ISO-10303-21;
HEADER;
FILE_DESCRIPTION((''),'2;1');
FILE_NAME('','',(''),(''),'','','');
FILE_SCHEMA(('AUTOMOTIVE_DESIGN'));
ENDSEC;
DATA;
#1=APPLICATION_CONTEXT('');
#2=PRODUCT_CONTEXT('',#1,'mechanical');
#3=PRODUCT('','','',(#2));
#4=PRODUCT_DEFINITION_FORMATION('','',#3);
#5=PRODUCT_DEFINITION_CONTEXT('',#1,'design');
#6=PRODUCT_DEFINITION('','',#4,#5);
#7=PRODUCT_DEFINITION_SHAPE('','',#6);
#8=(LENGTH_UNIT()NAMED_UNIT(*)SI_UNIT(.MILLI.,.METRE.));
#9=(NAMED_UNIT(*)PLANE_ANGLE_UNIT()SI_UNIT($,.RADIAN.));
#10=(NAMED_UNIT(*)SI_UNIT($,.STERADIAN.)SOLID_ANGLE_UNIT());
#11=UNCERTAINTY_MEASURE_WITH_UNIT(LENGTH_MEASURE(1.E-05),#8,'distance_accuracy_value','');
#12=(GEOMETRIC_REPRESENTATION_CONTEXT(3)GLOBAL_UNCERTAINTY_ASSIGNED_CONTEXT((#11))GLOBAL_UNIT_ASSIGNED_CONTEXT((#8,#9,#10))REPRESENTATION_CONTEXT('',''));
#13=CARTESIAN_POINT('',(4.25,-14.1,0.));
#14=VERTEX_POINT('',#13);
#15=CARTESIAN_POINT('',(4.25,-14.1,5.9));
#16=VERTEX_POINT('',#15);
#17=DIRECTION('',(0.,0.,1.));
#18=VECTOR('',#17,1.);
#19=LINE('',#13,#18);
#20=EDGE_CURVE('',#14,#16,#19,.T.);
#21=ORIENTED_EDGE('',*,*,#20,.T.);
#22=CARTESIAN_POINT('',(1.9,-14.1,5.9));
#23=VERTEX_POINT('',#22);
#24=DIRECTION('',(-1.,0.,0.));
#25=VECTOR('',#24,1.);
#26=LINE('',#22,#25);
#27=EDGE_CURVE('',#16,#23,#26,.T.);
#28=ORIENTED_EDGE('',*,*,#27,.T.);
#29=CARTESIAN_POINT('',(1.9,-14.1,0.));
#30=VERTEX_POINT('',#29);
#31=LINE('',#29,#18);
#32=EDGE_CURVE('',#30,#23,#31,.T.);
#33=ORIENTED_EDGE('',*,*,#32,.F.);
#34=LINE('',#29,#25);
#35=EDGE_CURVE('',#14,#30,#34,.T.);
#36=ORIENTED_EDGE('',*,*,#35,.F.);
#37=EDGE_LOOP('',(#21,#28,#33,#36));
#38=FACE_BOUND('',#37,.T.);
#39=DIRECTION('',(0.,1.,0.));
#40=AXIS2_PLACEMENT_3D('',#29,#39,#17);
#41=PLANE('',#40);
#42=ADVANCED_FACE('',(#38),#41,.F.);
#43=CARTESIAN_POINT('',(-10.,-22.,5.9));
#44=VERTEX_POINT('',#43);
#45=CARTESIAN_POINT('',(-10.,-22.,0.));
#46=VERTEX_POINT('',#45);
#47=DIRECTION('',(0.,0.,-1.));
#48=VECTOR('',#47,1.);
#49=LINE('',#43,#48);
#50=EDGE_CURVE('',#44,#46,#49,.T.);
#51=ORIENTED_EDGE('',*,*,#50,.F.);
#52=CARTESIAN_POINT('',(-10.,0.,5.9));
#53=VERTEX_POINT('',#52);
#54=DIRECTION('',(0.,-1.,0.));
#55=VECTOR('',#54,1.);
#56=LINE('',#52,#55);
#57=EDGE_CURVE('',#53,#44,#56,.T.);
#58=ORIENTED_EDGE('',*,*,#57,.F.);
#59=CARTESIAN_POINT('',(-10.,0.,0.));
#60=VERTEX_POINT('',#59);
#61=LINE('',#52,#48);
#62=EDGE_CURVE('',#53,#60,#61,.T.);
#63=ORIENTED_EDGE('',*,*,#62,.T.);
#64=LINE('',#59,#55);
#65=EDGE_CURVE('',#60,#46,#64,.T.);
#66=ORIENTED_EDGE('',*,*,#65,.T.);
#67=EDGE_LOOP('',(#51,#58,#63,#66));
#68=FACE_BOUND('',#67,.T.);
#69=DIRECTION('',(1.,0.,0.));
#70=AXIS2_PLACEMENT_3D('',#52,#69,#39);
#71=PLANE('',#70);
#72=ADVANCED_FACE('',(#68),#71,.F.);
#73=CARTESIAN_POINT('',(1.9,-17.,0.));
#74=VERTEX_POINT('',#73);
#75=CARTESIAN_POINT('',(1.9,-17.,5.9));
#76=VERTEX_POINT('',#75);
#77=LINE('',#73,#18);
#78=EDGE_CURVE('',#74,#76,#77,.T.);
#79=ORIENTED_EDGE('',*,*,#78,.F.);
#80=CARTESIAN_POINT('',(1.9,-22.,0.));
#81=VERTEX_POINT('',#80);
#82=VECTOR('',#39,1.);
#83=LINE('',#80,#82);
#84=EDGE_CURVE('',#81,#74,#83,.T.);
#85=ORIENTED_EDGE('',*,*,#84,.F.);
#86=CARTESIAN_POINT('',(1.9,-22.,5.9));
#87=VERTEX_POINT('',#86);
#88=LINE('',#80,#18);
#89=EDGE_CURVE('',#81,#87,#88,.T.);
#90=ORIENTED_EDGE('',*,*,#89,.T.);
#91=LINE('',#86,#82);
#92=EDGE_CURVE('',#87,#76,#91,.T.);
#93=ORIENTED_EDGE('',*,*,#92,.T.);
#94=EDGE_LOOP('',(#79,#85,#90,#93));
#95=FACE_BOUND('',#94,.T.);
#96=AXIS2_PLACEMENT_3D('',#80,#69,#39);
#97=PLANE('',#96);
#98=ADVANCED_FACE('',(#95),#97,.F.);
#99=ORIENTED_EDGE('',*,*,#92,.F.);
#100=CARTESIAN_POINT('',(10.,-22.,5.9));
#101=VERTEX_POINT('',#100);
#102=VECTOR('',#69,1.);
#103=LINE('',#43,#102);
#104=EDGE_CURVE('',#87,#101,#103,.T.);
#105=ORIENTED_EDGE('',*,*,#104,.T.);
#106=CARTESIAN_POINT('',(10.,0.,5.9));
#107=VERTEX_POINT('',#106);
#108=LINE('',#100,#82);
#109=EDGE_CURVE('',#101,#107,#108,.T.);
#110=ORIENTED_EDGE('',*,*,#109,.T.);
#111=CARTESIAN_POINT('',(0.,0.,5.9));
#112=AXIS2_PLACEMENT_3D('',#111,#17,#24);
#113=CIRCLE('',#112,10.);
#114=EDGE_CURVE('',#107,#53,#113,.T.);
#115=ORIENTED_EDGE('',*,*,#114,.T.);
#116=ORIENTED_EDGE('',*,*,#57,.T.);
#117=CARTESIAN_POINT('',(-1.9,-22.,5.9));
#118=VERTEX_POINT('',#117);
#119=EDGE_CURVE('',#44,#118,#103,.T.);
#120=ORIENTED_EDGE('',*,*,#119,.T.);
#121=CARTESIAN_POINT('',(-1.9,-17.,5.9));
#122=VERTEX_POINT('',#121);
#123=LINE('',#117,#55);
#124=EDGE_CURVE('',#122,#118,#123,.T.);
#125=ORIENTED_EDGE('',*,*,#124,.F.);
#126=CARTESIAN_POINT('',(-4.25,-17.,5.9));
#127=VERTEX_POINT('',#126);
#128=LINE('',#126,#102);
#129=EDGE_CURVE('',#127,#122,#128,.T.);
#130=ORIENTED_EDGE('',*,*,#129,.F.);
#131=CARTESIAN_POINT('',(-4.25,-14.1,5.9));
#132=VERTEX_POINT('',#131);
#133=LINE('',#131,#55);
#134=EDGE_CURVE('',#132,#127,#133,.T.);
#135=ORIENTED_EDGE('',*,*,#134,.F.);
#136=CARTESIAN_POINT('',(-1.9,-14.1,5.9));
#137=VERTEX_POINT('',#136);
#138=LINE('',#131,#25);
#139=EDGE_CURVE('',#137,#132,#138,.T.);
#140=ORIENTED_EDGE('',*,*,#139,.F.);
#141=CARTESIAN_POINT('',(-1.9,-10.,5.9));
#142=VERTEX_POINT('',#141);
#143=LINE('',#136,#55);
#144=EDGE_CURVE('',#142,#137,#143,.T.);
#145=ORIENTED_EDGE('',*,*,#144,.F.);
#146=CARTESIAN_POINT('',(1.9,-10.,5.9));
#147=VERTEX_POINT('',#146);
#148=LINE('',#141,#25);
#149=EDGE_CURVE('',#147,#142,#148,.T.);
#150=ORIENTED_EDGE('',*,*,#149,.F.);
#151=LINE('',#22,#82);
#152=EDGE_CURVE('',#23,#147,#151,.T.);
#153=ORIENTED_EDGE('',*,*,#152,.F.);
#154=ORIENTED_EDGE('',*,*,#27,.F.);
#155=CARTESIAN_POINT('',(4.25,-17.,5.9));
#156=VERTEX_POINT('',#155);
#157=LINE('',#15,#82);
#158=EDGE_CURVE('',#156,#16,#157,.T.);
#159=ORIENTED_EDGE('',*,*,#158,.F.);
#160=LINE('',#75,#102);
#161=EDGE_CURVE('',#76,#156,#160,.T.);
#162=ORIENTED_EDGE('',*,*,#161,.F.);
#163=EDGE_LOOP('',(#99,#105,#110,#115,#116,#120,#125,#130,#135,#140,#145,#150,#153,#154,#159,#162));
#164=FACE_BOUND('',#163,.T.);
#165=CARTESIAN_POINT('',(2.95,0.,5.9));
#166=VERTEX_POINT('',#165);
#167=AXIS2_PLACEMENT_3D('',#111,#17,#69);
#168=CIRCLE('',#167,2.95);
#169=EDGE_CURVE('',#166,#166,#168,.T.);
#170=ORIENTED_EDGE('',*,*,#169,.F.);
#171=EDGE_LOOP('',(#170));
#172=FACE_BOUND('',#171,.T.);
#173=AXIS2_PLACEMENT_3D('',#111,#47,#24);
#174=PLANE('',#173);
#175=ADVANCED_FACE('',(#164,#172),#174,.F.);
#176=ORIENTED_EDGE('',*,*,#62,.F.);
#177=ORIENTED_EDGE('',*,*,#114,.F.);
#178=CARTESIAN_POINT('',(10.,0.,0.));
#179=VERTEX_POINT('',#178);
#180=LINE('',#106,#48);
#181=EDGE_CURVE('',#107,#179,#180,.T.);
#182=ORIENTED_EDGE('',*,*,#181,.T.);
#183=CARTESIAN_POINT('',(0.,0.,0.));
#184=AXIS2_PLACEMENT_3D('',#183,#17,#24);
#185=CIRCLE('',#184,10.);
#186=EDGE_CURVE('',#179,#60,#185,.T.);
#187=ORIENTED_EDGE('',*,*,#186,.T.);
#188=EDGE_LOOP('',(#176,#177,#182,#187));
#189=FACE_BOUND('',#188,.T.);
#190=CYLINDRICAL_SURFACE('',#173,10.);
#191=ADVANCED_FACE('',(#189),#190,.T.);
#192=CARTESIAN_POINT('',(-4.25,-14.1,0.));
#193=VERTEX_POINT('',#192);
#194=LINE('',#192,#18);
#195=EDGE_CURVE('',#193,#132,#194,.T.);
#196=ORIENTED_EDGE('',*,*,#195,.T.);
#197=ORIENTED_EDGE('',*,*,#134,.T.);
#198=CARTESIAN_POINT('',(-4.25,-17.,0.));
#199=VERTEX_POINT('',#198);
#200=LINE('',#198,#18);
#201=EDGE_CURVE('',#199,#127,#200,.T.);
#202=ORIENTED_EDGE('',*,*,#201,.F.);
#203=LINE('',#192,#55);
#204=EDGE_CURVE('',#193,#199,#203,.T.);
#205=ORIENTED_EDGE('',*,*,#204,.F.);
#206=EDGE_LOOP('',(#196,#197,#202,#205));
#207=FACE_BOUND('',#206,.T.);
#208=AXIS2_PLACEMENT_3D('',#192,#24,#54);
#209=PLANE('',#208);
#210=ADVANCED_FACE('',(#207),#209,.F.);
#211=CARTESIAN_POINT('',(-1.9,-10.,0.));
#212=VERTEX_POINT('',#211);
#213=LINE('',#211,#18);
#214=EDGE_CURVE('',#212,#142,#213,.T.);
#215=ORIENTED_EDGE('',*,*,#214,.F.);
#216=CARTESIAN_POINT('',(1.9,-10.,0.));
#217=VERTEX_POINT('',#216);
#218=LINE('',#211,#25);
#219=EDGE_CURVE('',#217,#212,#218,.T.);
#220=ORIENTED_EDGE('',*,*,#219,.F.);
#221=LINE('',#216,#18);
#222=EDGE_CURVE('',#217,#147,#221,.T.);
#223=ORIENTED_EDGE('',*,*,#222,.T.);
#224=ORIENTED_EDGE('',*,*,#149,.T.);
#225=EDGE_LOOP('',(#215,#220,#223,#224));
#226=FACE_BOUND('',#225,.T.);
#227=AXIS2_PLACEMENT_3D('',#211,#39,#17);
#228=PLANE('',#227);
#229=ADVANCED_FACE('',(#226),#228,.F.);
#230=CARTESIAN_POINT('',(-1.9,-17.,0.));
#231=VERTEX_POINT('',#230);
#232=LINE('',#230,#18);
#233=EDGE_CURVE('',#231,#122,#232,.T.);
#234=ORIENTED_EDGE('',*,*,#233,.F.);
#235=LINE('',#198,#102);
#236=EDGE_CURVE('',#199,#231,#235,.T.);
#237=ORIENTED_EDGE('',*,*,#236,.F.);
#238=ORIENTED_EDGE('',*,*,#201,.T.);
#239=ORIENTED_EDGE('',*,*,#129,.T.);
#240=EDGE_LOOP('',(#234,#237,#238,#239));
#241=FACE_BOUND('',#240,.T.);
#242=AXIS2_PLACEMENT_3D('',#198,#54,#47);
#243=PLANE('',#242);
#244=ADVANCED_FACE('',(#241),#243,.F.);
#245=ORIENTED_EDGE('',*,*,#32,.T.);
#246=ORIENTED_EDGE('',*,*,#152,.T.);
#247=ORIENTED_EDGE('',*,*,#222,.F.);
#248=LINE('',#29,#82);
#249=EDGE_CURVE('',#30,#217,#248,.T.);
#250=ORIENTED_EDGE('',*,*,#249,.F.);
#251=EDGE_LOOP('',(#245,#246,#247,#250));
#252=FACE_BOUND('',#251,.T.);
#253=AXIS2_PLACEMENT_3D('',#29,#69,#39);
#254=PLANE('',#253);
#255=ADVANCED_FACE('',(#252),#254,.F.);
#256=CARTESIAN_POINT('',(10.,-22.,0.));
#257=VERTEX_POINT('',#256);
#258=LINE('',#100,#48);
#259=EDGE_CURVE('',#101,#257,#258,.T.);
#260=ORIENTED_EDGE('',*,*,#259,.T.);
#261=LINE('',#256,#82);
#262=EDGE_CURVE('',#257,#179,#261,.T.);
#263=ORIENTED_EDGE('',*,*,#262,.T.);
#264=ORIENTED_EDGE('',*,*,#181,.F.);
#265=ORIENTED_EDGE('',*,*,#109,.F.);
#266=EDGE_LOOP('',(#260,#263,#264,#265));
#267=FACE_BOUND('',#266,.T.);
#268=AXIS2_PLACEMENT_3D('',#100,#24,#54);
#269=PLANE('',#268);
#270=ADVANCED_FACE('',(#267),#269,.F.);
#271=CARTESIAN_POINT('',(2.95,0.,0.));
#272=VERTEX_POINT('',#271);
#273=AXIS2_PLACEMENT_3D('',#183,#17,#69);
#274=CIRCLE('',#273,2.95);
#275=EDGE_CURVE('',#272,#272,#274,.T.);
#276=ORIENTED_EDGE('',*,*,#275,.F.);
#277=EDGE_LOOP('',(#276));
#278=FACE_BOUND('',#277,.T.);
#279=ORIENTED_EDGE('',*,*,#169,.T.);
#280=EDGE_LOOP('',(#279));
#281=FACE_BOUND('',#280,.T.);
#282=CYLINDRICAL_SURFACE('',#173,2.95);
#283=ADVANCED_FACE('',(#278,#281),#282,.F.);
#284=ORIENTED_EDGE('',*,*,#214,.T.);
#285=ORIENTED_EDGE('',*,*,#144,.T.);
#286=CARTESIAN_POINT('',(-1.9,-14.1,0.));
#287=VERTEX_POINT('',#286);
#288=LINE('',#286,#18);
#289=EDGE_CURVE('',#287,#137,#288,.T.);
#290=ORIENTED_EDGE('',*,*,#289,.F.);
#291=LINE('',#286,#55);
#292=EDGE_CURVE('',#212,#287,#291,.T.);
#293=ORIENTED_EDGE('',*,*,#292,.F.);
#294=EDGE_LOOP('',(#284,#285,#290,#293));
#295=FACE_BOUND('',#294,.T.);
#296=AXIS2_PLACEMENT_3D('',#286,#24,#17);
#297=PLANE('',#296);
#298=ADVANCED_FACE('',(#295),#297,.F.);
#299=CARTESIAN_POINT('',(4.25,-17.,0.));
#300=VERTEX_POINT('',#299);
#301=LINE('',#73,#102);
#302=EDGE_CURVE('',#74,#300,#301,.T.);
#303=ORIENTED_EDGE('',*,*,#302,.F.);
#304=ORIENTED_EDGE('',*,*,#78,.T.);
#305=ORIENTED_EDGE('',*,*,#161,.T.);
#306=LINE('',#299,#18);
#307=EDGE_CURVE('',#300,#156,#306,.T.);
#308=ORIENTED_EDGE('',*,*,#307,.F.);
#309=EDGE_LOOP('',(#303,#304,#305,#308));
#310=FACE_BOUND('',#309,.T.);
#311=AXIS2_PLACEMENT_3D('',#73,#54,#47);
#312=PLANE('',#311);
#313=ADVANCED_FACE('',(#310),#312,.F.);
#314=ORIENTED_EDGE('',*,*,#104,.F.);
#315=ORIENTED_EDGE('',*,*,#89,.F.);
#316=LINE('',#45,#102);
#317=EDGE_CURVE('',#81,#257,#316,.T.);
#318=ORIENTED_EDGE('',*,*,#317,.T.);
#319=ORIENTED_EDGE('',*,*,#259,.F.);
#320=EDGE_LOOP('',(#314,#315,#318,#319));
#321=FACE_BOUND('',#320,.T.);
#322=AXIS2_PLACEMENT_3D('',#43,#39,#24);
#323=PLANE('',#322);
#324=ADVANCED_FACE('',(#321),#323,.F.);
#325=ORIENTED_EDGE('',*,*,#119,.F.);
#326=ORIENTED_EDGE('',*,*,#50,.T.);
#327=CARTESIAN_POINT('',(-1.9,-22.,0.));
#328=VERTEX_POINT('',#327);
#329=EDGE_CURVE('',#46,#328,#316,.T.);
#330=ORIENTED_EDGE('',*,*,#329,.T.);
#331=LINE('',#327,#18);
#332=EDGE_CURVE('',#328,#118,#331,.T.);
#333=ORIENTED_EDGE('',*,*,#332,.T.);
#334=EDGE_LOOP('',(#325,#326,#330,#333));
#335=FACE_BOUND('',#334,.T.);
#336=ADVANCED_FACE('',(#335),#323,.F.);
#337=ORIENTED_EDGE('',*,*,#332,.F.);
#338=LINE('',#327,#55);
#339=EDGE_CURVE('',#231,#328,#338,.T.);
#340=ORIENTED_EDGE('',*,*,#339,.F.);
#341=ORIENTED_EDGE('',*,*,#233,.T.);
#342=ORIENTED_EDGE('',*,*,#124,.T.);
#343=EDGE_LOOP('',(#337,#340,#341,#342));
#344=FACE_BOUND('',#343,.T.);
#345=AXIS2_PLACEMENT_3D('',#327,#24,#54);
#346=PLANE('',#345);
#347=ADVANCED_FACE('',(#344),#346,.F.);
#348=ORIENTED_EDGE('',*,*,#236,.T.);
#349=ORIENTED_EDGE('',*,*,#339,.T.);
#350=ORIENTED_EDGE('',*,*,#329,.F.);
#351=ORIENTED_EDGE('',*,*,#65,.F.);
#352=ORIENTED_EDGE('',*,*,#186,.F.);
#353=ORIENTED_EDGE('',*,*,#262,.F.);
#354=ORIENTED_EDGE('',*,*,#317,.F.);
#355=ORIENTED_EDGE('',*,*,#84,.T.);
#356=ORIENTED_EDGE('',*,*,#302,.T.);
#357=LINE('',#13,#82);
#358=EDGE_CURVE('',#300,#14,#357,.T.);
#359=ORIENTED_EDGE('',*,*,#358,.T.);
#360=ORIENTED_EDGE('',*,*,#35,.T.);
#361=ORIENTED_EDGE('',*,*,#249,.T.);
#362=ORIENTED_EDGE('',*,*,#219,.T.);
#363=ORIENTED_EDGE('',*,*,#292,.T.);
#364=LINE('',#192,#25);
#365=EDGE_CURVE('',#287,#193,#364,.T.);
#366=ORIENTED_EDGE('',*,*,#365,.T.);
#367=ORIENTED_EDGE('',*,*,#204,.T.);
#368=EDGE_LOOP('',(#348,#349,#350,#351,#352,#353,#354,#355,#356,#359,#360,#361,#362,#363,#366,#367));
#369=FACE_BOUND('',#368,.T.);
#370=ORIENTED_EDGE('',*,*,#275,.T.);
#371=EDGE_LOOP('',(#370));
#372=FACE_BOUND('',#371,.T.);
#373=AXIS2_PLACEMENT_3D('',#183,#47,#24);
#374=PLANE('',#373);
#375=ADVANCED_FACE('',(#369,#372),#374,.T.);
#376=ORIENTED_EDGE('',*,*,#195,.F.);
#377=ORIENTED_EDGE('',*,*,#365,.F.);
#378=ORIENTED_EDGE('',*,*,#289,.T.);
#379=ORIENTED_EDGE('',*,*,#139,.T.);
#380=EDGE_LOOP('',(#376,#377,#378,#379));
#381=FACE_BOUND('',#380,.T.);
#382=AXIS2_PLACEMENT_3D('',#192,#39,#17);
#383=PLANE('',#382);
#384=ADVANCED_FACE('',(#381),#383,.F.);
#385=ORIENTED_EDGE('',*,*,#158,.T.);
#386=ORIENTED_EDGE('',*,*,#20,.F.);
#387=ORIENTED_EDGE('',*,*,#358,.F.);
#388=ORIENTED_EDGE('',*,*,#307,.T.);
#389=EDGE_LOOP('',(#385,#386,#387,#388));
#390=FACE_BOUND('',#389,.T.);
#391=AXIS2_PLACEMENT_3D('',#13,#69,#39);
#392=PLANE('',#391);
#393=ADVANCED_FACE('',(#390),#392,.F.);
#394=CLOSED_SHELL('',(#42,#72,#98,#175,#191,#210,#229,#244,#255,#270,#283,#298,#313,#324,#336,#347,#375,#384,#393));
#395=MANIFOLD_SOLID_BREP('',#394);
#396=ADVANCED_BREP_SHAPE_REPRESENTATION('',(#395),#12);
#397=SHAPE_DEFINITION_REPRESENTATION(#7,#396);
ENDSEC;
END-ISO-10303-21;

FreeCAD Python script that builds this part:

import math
import FreeCAD as App
import Part
import Sketcher

V = App.Vector
Q = App.Units.Quantity

doc = App.newDocument("Part")
body = doc.addObject("PartDesign::Body", "Body")

sketch1 = doc.addObject("Sketcher::SketchObject", "Sketch")
body.addObject(sketch1)
sketch1.AttachmentSupport = (doc.XY_Plane, [""])
sketch1.MapMode = "FlatFace"
sketch1.addGeometry([
    Part.LineSegment(V(-10, 0, 0), V(-10, -22, 0)),
    Part.LineSegment(V(-10, -22, 0), V(10, -22, 0)),
    Part.LineSegment(V(10, -22, 0), V(10, 0, 0)),
    Part.ArcOfCircle(Part.Circle(V(0, 0, 0), V(0, 0, 1), 10), math.radians(0), math.radians(180)),
    Part.Circle(V(0, 0, 0), V(0, 0, 1), 3),
], False)
sketch1.addConstraint([
    Sketcher.Constraint("Coincident", 0, 2, 1, 1),
    Sketcher.Constraint("Coincident", 1, 2, 2, 1),
    Sketcher.Constraint("Tangent", 2, 2, 3, 1),
    Sketcher.Constraint("Tangent", 3, 2, 0, 1),
    Sketcher.Constraint("Vertical", 0),
    Sketcher.Constraint("Horizontal", 1),
    Sketcher.Constraint("Vertical", 2),
    Sketcher.Constraint("Coincident", 3, 3, -1, 1),
    Sketcher.Constraint("Coincident", 4, 3, -1, 1),
    Sketcher.Constraint("Radius", 3, Q("10 mm")),
    Sketcher.Constraint("Diameter", 4, Q("5.9 mm")),
    Sketcher.Constraint("DistanceY", 0, 2, 0, 1, Q("22 mm")),
])
pad1 = doc.addObject("PartDesign::Pad", "Pad")
body.addObject(pad1)
pad1.Profile = sketch1
pad1.Length = 5.9

sketch2 = doc.addObject("Sketcher::SketchObject", "Sketch001")
body.addObject(sketch2)
sketch2.AttachmentSupport = (doc.XY_Plane, [""])
sketch2.MapMode = "FlatFace"
sketch2.AttachmentOffset = App.Placement(V(0, 0, 5.9), App.Rotation())
sketch2.addGeometry([
    Part.LineSegment(V(-1.9, -22, 0), V(1.9, -22, 0)),
    Part.LineSegment(V(1.9, -22, 0), V(1.9, -17, 0)),
    Part.LineSegment(V(1.9, -17, 0), V(4.2, -17, 0)),
    Part.LineSegment(V(4.2, -17, 0), V(4.2, -14.1, 0)),
    Part.LineSegment(V(4.2, -14.1, 0), V(1.9, -14.1, 0)),
    Part.LineSegment(V(1.9, -14.1, 0), V(1.9, -10, 0)),
    Part.LineSegment(V(1.9, -10, 0), V(-1.9, -10, 0)),
    Part.LineSegment(V(-1.9, -10, 0), V(-1.9, -14.1, 0)),
    Part.LineSegment(V(-1.9, -14.1, 0), V(-4.2, -14.1, 0)),
    Part.LineSegment(V(-4.2, -14.1, 0), V(-4.2, -17, 0)),
    Part.LineSegment(V(-4.2, -17, 0), V(-1.9, -17, 0)),
    Part.LineSegment(V(-1.9, -17, 0), V(-1.9, -22, 0)),
], False)
sketch2.addConstraint([
    Sketcher.Constraint("Coincident", 0, 2, 1, 1),
    Sketcher.Constraint("Coincident", 1, 2, 2, 1),
    Sketcher.Constraint("Coincident", 2, 2, 3, 1),
    Sketcher.Constraint("Coincident", 3, 2, 4, 1),
    Sketcher.Constraint("Coincident", 4, 2, 5, 1),
    Sketcher.Constraint("Coincident", 5, 2, 6, 1),
    Sketcher.Constraint("Coincident", 6, 2, 7, 1),
    Sketcher.Constraint("Coincident", 7, 2, 8, 1),
    Sketcher.Constraint("Coincident", 8, 2, 9, 1),
    Sketcher.Constraint("Coincident", 9, 2, 10, 1),
    Sketcher.Constraint("Coincident", 10, 2, 11, 1),
    Sketcher.Constraint("Coincident", 11, 2, 0, 1),
    Sketcher.Constraint("Horizontal", 0),
    Sketcher.Constraint("Vertical", 1),
    Sketcher.Constraint("Horizontal", 2),
    Sketcher.Constraint("Vertical", 3),
    Sketcher.Constraint("Horizontal", 4),
    Sketcher.Constraint("Vertical", 5),
    Sketcher.Constraint("Horizontal", 6),
    Sketcher.Constraint("Vertical", 7),
    Sketcher.Constraint("Horizontal", 8),
    Sketcher.Constraint("Vertical", 9),
    Sketcher.Constraint("Horizontal", 10),
    Sketcher.Constraint("Vertical", 11),
    Sketcher.Constraint("Symmetric", 4, 2, 7, 2, -2),
    Sketcher.Constraint("Symmetric", 2, 2, 9, 2, -2),
    Sketcher.Constraint("Vertical", 1, 2, 4, 2),
    Sketcher.Constraint("Vertical", 7, 2, 10, 2),
    Sketcher.Constraint("DistanceY", 1, 1, 1, 2, Q("5 mm")),
    Sketcher.Constraint("DistanceX", 0, 1, 0, 2, Q("3.8 mm")),
    Sketcher.Constraint("DistanceY", 3, 1, 3, 2, Q("2.9 mm")),
    Sketcher.Constraint("DistanceY", 5, 1, 5, 2, Q("4.1 mm")),
    Sketcher.Constraint("DistanceY", 0, 2, -1, 1, Q("22 mm")),
    Sketcher.Constraint("DistanceX", 2, 1, 2, 2, Q("2.35 mm")),
])
pocket1 = doc.addObject("PartDesign::Pocket", "Pocket")
body.addObject(pocket1)
pocket1.Profile = sketch2
pocket1.Type = "ThroughAll"

doc.recompute()
